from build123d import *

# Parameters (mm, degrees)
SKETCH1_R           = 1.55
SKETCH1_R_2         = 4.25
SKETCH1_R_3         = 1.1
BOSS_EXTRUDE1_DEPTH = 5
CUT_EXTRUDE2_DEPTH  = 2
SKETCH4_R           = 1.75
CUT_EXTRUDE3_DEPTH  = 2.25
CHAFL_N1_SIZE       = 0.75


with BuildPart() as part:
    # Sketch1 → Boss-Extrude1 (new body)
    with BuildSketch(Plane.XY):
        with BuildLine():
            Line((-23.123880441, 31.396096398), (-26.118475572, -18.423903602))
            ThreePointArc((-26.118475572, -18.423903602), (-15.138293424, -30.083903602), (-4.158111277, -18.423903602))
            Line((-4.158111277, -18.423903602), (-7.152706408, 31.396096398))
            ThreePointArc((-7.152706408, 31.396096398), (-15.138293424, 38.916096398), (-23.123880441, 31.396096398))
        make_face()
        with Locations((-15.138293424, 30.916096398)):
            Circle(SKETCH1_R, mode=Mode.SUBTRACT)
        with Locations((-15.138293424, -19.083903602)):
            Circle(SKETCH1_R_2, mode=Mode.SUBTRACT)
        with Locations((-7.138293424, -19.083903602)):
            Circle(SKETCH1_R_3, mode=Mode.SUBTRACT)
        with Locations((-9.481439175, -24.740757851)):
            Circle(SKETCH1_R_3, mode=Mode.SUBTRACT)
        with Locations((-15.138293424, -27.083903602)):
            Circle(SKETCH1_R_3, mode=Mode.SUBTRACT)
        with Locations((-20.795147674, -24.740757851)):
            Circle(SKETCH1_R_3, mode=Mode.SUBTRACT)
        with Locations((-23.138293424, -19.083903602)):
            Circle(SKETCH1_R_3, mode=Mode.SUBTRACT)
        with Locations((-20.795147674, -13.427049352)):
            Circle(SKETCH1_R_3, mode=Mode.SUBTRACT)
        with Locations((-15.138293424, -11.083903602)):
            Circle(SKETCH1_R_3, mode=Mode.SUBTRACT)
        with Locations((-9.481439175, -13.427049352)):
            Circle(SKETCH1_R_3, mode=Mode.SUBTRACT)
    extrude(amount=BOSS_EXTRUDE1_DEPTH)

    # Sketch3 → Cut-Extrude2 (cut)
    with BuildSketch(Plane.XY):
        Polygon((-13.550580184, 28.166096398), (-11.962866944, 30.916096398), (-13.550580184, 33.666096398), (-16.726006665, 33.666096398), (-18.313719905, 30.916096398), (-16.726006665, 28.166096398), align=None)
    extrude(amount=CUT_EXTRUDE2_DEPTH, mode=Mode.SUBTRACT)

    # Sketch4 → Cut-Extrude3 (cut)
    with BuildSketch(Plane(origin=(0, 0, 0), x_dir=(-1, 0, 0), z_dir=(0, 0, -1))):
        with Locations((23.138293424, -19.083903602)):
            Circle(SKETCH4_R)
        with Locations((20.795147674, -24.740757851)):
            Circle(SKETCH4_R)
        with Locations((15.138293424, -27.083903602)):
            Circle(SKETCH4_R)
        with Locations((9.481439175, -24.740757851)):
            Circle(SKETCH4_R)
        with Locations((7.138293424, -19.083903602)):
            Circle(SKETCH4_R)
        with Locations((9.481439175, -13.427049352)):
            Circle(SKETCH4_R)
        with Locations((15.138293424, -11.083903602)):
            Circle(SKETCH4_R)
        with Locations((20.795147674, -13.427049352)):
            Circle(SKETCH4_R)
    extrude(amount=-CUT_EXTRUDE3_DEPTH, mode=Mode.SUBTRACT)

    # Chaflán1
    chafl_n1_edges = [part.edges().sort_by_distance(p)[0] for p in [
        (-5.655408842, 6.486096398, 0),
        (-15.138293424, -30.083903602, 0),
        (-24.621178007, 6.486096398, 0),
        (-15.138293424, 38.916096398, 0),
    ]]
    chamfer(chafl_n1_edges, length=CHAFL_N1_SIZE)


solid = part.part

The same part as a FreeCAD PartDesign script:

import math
import FreeCAD as App
import Part
import Sketcher
from FreeCAD import Vector
Q = App.Units.Quantity


def edges_at(feature, points):
    """Names of the edges that pass closest to the given points."""
    edges = feature.Shape.Edges
    near = lambda p: min(range(len(edges)), key=lambda i: edges[i].distToShape(Part.Vertex(*p))[0])
    return sorted({f"Edge{near(p) + 1}" for p in points})


def add_polygon(sketch, points):
    """Adds a closed chain of lines whose ends are joined by coincident constraints."""
    first, n = sketch.GeometryCount, len(points)
    for a, b in zip(points, points[1:] + points[:1]):
        sketch.addGeometry(Part.LineSegment(App.Vector(*a, 0), App.Vector(*b, 0)), False)
    for i in range(n):
        sketch.addConstraint(Sketcher.Constraint("Coincident", first + i, 2, first + (i + 1) % n, 1))

doc = App.newDocument("Part")
body = doc.addObject("PartDesign::Body", "Body")

# Sketch on XY plane
sketch1 = body.newObject("Sketcher::SketchObject", "Sketch")
sketch1.AttachmentSupport = (doc.getObject("XY_Plane"), [""])
sketch1.MapMode = "FlatFace"
sketch1.addGeometry([
    Part.LineSegment(Vector(-23.1, 31.4, 0), Vector(-26.1, -18.4, 0)),  # 0
    Part.ArcOfCircle(Part.Circle(Vector(-15.1, -19.1, 0), Vector(0, 0, 1), 11), math.radians(177), math.radians(363)),  # 1
    Part.LineSegment(Vector(-4.2, -18.4, 0), Vector(-7.2, 31.4, 0)),  # 2
    Part.ArcOfCircle(Part.Circle(Vector(-15.1, 30.9, 0), Vector(0, 0, 1), 8), math.radians(3), math.radians(177)),  # 3
    Part.Circle(Vector(-20.8, -24.7, 0), Vector(0, 0, 1), 1.1),  # 4
    Part.Circle(Vector(-23.1, -19.1, 0), Vector(0, 0, 1), 1.1),  # 5
    Part.Circle(Vector(-20.8, -13.4, 0), Vector(0, 0, 1), 1.1),  # 6
    Part.Circle(Vector(-15.1, -27.1, 0), Vector(0, 0, 1), 1.1),  # 7
    Part.Circle(Vector(-15.1, -19.1, 0), Vector(0, 0, 1), 4.2),  # 8
    Part.Circle(Vector(-9.5, -24.7, 0), Vector(0, 0, 1), 1.1),  # 9
    Part.Circle(Vector(-9.5, -13.4, 0), Vector(0, 0, 1), 1.1),  # 10
    Part.Circle(Vector(-7.1, -19.1, 0), Vector(0, 0, 1), 1.1),  # 11
    Part.Circle(Vector(-15.1, -11.1, 0), Vector(0, 0, 1), 1.1),  # 12
    Part.Circle(Vector(-15.1, 30.9, 0), Vector(0, 0, 1), 1.6),  # 13
], False)
sketch1.addConstraint([
    Sketcher.Constraint("Tangent", 0, 2, 1, 1),
    Sketcher.Constraint("Tangent", 1, 2, 2, 1),
    Sketcher.Constraint("Tangent", 2, 2, 3, 1),
    Sketcher.Constraint("Tangent", 3, 2, 0, 1),
    Sketcher.Constraint("Coincident", 8, 3, 1, 3),
    Sketcher.Constraint("Coincident", 13, 3, 3, 3),
    Sketcher.Constraint("Equal", 4, 5),
    Sketcher.Constraint("Equal", 5, 6),
    Sketcher.Constraint("Equal", 6, 7),
    Sketcher.Constraint("Equal", 7, 9),
    Sketcher.Constraint("Equal", 9, 10),
    Sketcher.Constraint("Equal", 10, 11),
    Sketcher.Constraint("Equal", 11, 12),
    Sketcher.Constraint("Horizontal", 1, 3, 5, 3),
    Sketcher.Constraint("Horizontal", 4, 3, 9, 3),
    Sketcher.Constraint("Horizontal", 6, 3, 10, 3),
    Sketcher.Constraint("Horizontal", 8, 3, 11, 3),
    Sketcher.Constraint("Horizontal", 0, 2, 1, 2),
    Sketcher.Constraint("Vertical", 4, 3, 6, 3),
    Sketcher.Constraint("Vertical", 3, 3, 7, 3),
    Sketcher.Constraint("Vertical", 9, 3, 10, 3),
    Sketcher.Constraint("Vertical", 8, 3, 12, 3),
    Sketcher.Constraint("Radius", 1, Q("11 mm")),
    Sketcher.Constraint("Radius", 3, Q("8 mm")),
    Sketcher.Constraint("Diameter", 4, Q("2.2 mm")),
    Sketcher.Constraint("Diameter", 8, Q("8.5 mm")),
    Sketcher.Constraint("Diameter", 13, Q("3.1 mm")),
    Sketcher.Constraint("DistanceY", 1, 3, 3, 3, Q("50 mm")),
    Sketcher.Constraint("DistanceX", 5, 3, 1, 3, Q("8 mm")),
    Sketcher.Constraint("DistanceY", 7, 3, 1, 3, Q("8 mm")),
    Sketcher.Constraint("DistanceX", 8, 3, 11, 3, Q("8 mm")),
    Sketcher.Constraint("DistanceY", 1, 3, 12, 3, Q("8 mm")),
    Sketcher.Constraint("DistanceY", 6, 3, -1, 1, Q("13.427049 mm")),
    Sketcher.Constraint("DistanceX", 9, 3, -1, 1, Q("9.481439 mm")),
    Sketcher.Constraint("DistanceX", 1, 2, -1, 1, Q("4.158111 mm")),
    Sketcher.Constraint("DistanceY", 4, 3, 6, 3, Q("11.313708 mm")),
    Sketcher.Constraint("DistanceX", 4, 3, 9, 3, Q("11.313708 mm")),
    Sketcher.Constraint("DistanceY", 1, 3, -1, 1, Q("19.083904 mm")),
])
pad1 = body.newObject("PartDesign::Pad", "Pad")
pad1.Profile = sketch1
pad1.Length = 5

# Sketch on XY plane
sketch2 = body.newObject("Sketcher::SketchObject", "Sketch001")
sketch2.AttachmentSupport = (doc.getObject("XY_Plane"), [""])
sketch2.MapMode = "FlatFace"
add_polygon(sketch2, [(-13.6, 28.2), (-12, 30.9), (-13.6, 33.7), (-16.7, 33.7), (-18.3, 30.9), (-16.7, 28.2)])  # lines 0-5
sketch2.addConstraint([
    Sketcher.Constraint("Horizontal", 2),
    Sketcher.Constraint("Horizontal", 5),
    Sketcher.Constraint("Parallel", 0, 3),
    Sketcher.Constraint("Parallel", 1, 4),
    Sketcher.Constraint("Horizontal", 0, 2, 3, 2),
    Sketcher.Constraint("Vertical", 2, 2, 4, 2),
    Sketcher.Constraint("Vertical", 1, 2, 5, 2),
    Sketcher.Constraint("Angle", 0, Q("60 deg")),
    Sketcher.Constraint("DistanceY", 4, 2, 2, 2, Q("5.5 mm")),
    Sketcher.Constraint("DistanceX", 2, 2, 2, 1, Q("3.175426 mm")),
    Sketcher.Constraint("DistanceX", 1, 2, -1, 1, Q("13.55058 mm")),
    Sketcher.Constraint("DistanceY", -1, 1, 0, 2, Q("30.916096 mm")),
])
pocket1 = body.newObject("PartDesign::Pocket", "Pocket")
pocket1.Profile = sketch2
pocket1.Length = 2
pocket1.Reversed = True

# Sketch on XY plane
sketch3 = body.newObject("Sketcher::SketchObject", "Sketch002")
sketch3.AttachmentSupport = (doc.getObject("XY_Plane"), [""])
sketch3.MapMode = "FlatFace"
sketch3.addGeometry([
    Part.Circle(Vector(-23.1, -19.1, 0), Vector(0, 0, 1), 1.8),  # 0
    Part.Circle(Vector(-20.8, -24.7, 0), Vector(0, 0, 1), 1.8),  # 1
    Part.Circle(Vector(-15.1, -27.1, 0), Vector(0, 0, 1), 1.8),  # 2
    Part.Circle(Vector(-9.5, -24.7, 0), Vector(0, 0, 1), 1.8),  # 3
    Part.Circle(Vector(-7.1, -19.1, 0), Vector(0, 0, 1), 1.8),  # 4
    Part.Circle(Vector(-9.5, -13.4, 0), Vector(0, 0, 1), 1.8),  # 5
    Part.Circle(Vector(-15.1, -11.1, 0), Vector(0, 0, 1), 1.8),  # 6
    Part.Circle(Vector(-20.8, -13.4, 0), Vector(0, 0, 1), 1.8),  # 7
], False)
sketch3.addConstraint([
    Sketcher.Constraint("Equal", 0, 1),
    Sketcher.Constraint("Equal", 1, 2),
    Sketcher.Constraint("Equal", 2, 3),
    Sketcher.Constraint("Equal", 3, 4),
    Sketcher.Constraint("Equal", 4, 5),
    Sketcher.Constraint("Equal", 5, 6),
    Sketcher.Constraint("Equal", 6, 7),
    Sketcher.Constraint("Horizontal", 1, 3, 3, 3),
    Sketcher.Constraint("Horizontal", 0, 3, 4, 3),
    Sketcher.Constraint("Horizontal", 5, 3, 7, 3),
    Sketcher.Constraint("Vertical", 3, 3, 5, 3),
    Sketcher.Constraint("Vertical", 2, 3, 6, 3),
    Sketcher.Constraint("Vertical", 1, 3, 7, 3),
    Sketcher.Constraint("Diameter", 0, Q("3.5 mm")),
    Sketcher.Constraint("DistanceX", 0, 3, 2, 3, Q("8 mm")),
    Sketcher.Constraint("DistanceY", 2, 3, 0, 3, Q("8 mm")),
    Sketcher.Constraint("DistanceX", 2, 3, 4, 3, Q("8 mm")),
    Sketcher.Constraint("DistanceY", 0, 3, 6, 3, Q("8 mm")),
    Sketcher.Constraint("DistanceX", 3, 3, -1, 1, Q("9.481439 mm")),
    Sketcher.Constraint("DistanceY", 5, 3, -1, 1, Q("13.427049 mm")),
    Sketcher.Constraint("DistanceX", 1, 3, 3, 3, Q("11.313708 mm")),
    Sketcher.Constraint("DistanceY", 3, 3, 5, 3, Q("11.313708 mm")),
    Sketcher.Constraint("DistanceX", 0, 3, -1, 1, Q("23.138293 mm")),
    Sketcher.Constraint("DistanceY", 0, 3, -1, 1, Q("19.083904 mm")),
])
pocket2 = body.newObject("PartDesign::Pocket", "Pocket001")
pocket2.Profile = sketch3
pocket2.Length = 2.25
pocket2.Reversed = True
doc.recompute()

chamfer = body.newObject("PartDesign::Chamfer", "Chamfer")
chamfer.Base = (pocket2, edges_at(pocket2, [
    (-5.655, 6.486, 0),
    (-15.138, -30.084, 0),
    (-24.621, 6.486, 0),
    (-15.138, 38.916, 0),
]))
chamfer.Size = 0.75

doc.recompute()
